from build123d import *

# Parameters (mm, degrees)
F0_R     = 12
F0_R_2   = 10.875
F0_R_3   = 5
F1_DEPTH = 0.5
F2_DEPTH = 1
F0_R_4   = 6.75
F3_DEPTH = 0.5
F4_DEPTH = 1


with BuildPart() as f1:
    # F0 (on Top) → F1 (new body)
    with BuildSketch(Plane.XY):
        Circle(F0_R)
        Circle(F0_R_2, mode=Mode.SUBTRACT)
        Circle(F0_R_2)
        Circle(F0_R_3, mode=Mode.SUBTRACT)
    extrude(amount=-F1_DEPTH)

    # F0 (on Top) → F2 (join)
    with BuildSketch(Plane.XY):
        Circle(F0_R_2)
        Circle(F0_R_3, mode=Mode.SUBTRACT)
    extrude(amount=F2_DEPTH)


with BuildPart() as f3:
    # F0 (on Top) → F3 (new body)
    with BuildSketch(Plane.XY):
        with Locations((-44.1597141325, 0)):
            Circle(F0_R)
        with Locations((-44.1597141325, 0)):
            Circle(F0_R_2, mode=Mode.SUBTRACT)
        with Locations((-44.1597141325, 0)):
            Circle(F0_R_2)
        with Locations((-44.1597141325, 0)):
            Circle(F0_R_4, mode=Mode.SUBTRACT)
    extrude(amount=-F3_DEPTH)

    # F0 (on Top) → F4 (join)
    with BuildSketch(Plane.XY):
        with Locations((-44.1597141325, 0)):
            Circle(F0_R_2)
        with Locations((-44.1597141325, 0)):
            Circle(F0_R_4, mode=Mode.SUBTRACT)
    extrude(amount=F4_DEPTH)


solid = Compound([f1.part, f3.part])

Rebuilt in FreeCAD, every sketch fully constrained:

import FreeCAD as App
import Part
import Sketcher

doc = App.newDocument("Part")
body = doc.addObject("PartDesign::Body", "Body")

# Sketch on XY plane
sketch1 = doc.addObject("Sketcher::SketchObject", "Sketch")
body.addObject(sketch1)
sketch1.AttachmentSupport = (doc.XY_Plane, [""])
sketch1.MapMode = "FlatFace"
sketch1.addGeometry([
    Part.Circle(App.Vector(0, 0, 0), App.Vector(0, 0, 1), 12),
    Part.Circle(App.Vector(0, 0, 0), App.Vector(0, 0, 1), 5),
], False)
sketch1.addConstraint([
    Sketcher.Constraint("Coincident", 0, 3, -1, 1),
    Sketcher.Constraint("Coincident", 1, 3, -1, 1),
    Sketcher.Constraint("Diameter", 0, 24.0),
    Sketcher.Constraint("Diameter", 1, 10.0),
])
pad1 = doc.addObject("PartDesign::Pad", "Pad")
body.addObject(pad1)
pad1.Profile = sketch1
pad1.Length = 0.5
pad1.Reversed = True

# Sketch on XY plane
sketch2 = doc.addObject("Sketcher::SketchObject", "Sketch001")
body.addObject(sketch2)
sketch2.AttachmentSupport = (doc.XY_Plane, [""])
sketch2.MapMode = "FlatFace"
sketch2.addGeometry([
    Part.Circle(App.Vector(0, 0, 0), App.Vector(0, 0, 1), 10.875),
    Part.Circle(App.Vector(0, 0, 0), App.Vector(0, 0, 1), 5),
], False)
sketch2.addConstraint([
    Sketcher.Constraint("Coincident", 0, 3, -1, 1),
    Sketcher.Constraint("Coincident", 1, 3, -1, 1),
    Sketcher.Constraint("Diameter", 1, 10.0),
    Sketcher.Constraint("Diameter", 0, 21.75),
])
pad2 = doc.addObject("PartDesign::Pad", "Pad001")
body.addObject(pad2)
pad2.Profile = sketch2
pad2.Length = 1
body2 = doc.addObject("PartDesign::Body", "Body001")

# Sketch on XY plane
sketch3 = doc.addObject("Sketcher::SketchObject", "Sketch002")
body2.addObject(sketch3)
sketch3.AttachmentSupport = (doc.getObject("XY_Plane001"), [""])
sketch3.MapMode = "FlatFace"
sketch3.addGeometry([
    Part.Circle(App.Vector(-44.159714, 0, 0), App.Vector(0, 0, 1), 12),
    Part.Circle(App.Vector(-44.159714, 0, 0), App.Vector(0, 0, 1), 6.75),
], False)
sketch3.addConstraint([
    Sketcher.Constraint("Coincident", 1, 3, 0, 3),
    Sketcher.Constraint("PointOnObject", 0, 3, -1),
    Sketcher.Constraint("Diameter", 0, 24.0),
    Sketcher.Constraint("Diameter", 1, 13.5),
    Sketcher.Constraint("DistanceX", 0, 3, -1, 1, 44.159714),
])
pad3 = doc.addObject("PartDesign::Pad", "Pad002")
body2.addObject(pad3)
pad3.Profile = sketch3
pad3.Length = 0.5
pad3.Reversed = True

# Sketch on XY plane
sketch4 = doc.addObject("Sketcher::SketchObject", "Sketch003")
body2.addObject(sketch4)
sketch4.AttachmentSupport = (doc.getObject("XY_Plane001"), [""])
sketch4.MapMode = "FlatFace"
sketch4.addGeometry([
    Part.Circle(App.Vector(-44.159714, 0, 0), App.Vector(0, 0, 1), 10.875),
    Part.Circle(App.Vector(-44.159714, 0, 0), App.Vector(0, 0, 1), 6.75),
], False)
sketch4.addConstraint([
    Sketcher.Constraint("Coincident", 1, 3, 0, 3),
    Sketcher.Constraint("PointOnObject", 0, 3, -1),
    Sketcher.Constraint("Diameter", 1, 13.5),
    Sketcher.Constraint("Diameter", 0, 21.75),
    Sketcher.Constraint("DistanceX", 0, 3, -1, 1, 44.159714),
])
pad4 = doc.addObject("PartDesign::Pad", "Pad003")
body2.addObject(pad4)
pad4.Profile = sketch4
pad4.Length = 1

doc.recompute()
